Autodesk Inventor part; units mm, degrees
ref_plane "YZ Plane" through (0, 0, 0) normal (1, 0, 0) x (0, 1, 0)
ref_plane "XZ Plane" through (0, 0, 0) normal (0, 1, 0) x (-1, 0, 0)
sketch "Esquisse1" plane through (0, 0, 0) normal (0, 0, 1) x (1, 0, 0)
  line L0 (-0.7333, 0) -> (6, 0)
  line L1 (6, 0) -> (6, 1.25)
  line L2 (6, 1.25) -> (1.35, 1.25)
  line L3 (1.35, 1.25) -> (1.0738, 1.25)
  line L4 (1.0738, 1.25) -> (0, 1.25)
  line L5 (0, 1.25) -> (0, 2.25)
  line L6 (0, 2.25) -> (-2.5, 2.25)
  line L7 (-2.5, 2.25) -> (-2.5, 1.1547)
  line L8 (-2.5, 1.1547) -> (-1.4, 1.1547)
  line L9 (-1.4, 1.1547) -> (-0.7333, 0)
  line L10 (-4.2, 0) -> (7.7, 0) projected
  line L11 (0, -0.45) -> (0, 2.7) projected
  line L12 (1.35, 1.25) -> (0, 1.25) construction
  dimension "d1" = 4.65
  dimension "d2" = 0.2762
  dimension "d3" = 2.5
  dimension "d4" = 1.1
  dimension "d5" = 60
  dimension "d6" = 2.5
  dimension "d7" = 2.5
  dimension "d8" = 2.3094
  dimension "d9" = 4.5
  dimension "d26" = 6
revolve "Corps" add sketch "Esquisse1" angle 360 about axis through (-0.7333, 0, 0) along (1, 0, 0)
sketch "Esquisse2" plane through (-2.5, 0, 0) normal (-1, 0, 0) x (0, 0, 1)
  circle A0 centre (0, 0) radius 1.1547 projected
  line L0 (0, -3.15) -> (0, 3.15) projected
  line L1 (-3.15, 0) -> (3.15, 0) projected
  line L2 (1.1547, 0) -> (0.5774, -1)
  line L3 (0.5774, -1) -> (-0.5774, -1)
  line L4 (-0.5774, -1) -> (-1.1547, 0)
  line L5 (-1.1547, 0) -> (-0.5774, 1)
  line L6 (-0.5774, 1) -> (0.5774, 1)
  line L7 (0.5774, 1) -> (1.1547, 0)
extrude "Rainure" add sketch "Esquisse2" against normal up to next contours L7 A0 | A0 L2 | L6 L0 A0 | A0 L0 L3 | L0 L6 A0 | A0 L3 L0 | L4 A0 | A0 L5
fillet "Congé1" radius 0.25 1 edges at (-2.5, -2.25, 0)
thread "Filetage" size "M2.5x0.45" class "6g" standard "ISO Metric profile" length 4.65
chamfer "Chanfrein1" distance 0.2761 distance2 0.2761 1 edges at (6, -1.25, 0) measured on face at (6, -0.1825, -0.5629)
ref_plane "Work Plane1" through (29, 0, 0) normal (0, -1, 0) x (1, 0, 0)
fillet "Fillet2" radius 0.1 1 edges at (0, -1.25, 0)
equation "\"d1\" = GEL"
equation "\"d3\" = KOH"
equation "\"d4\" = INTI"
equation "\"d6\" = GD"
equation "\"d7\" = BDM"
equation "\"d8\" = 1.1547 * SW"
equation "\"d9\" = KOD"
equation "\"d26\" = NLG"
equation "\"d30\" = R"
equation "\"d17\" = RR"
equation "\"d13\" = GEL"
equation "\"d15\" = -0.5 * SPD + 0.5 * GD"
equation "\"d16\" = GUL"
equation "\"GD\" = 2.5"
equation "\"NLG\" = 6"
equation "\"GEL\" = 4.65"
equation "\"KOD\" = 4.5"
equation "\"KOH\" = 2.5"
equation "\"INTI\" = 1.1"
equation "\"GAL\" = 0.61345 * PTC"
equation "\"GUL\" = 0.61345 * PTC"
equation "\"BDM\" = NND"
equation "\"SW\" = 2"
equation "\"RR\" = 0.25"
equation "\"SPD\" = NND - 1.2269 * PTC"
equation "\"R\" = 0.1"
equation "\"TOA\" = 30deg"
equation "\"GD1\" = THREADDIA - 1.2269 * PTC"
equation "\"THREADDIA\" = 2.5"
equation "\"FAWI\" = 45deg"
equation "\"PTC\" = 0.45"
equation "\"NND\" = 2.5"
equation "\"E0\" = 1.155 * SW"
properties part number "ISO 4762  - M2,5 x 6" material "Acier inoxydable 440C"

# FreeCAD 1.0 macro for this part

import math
import FreeCAD as App
import Part
import Sketcher

V = App.Vector


def edges_at(feature, points):
    """Names of the edges that pass closest to the given points."""
    edges = feature.Shape.Edges
    near = lambda p: min(range(len(edges)), key=lambda i: edges[i].distToShape(Part.Vertex(*p))[0])
    return sorted({f"Edge{near(p) + 1}" for p in points})

doc = App.newDocument("Part")
params = doc.addObject("Spreadsheet::Sheet", "Params")
for row, (alias, value) in enumerate([
    ("sketch1_width", "6 mm"),
    ("sketch1_width2", "2.5 mm"),
    ("sketch1_width3", "1.1 mm"),
    ("sketch1_height", "1 mm"),
    ("sketch1_height2", "1.25 mm"),
    ("revolution_angle", "360 deg"),
    ("pad1_length", "1.1893 mm"),
    ("fillet_radius", "0.25 mm"),
    ("chamfer_size", "0.2761 mm"),
    ("chamfer_size2", "0.2761 mm"),
    ("fillet2_radius", "0.1 mm"),
], start=1):
    params.set(f"A{row}", alias)
    params.set(f"B{row}", "=" + value)
    params.setAlias(f"B{row}", alias)

body = doc.addObject("PartDesign::Body", "Body")

# Sketch on XY plane
sketch1 = body.newObject("Sketcher::SketchObject", "Sketch")
sketch1.AttachmentSupport = (doc.getObject("XY_Plane"), [""])
sketch1.MapMode = "FlatFace"
sketch1.addGeometry([
    Part.LineSegment(V(-1.4, 1.1547, 0), V(-0.7333, 0, 0)),  # 0
    Part.LineSegment(V(-0.7333, 0, 0), V(6, 0, 0)),  # 1
    Part.LineSegment(V(6, 0, 0), V(6, 1.25, 0)),  # 2
    Part.LineSegment(V(6, 1.25, 0), V(0, 1.25, 0)),  # 3
    Part.LineSegment(V(0, 1.25, 0), V(0, 2.25, 0)),  # 4
    Part.LineSegment(V(0, 2.25, 0), V(-2.5, 2.25, 0)),  # 5
    Part.LineSegment(V(-2.5, 2.25, 0), V(-2.5, 1.1547, 0)),  # 6
    Part.LineSegment(V(-2.5, 1.1547, 0), V(-1.4, 1.1547, 0)),  # 7
], False)
sketch1.addConstraint([
    Sketcher.Constraint("Coincident", 0, 2, 1, 1),
    Sketcher.Constraint("Coincident", 1, 2, 2, 1),
    Sketcher.Constraint("Coincident", 2, 2, 3, 1),
    Sketcher.Constraint("Coincident", 3, 2, 4, 1),
    Sketcher.Constraint("Coincident", 4, 2, 5, 1),
    Sketcher.Constraint("Coincident", 5, 2, 6, 1),
    Sketcher.Constraint("Coincident", 6, 2, 7, 1),
    Sketcher.Constraint("Coincident", 7, 2, 0, 1),
    Sketcher.Constraint("Horizontal", 1),
    Sketcher.Constraint("Vertical", 2),
    Sketcher.Constraint("Horizontal", 3),
    Sketcher.Constraint("Vertical", 4),
    Sketcher.Constraint("Horizontal", 5),
    Sketcher.Constraint("Vertical", 6),
    Sketcher.Constraint("Horizontal", 7),
    Sketcher.Constraint("PointOnObject", 0, 2, -1),
    Sketcher.Constraint("PointOnObject", 3, 2, -2),
    Sketcher.Constraint("DistanceX", 3, 2, 3, 1, 6.0),
    Sketcher.Constraint("DistanceX", 5, 2, 5, 1, 2.5),
    Sketcher.Constraint("DistanceX", 7, 1, 7, 2, 1.1),
    Sketcher.Constraint("DistanceY", 4, 1, 4, 2, 1.0),
    Sketcher.Constraint("DistanceY", 2, 1, 2, 2, 1.25),
    Sketcher.Constraint("DistanceX", 1, 1, 1, 2, 6.7333),
    Sketcher.Constraint("DistanceY", 6, 2, 6, 1, 1.0953),
])
sketch1.setExpression("Constraints[17]", "Params.sketch1_width")
sketch1.setExpression("Constraints[18]", "Params.sketch1_width2")
sketch1.setExpression("Constraints[19]", "Params.sketch1_width3")
sketch1.setExpression("Constraints[20]", "Params.sketch1_height")
sketch1.setExpression("Constraints[21]", "Params.sketch1_height2")
revolution = body.newObject("PartDesign::Revolution", "Revolution")
revolution.Profile = sketch1
revolution.ReferenceAxis = (sketch1, ["H_Axis"])
revolution.setExpression("Angle", "Params.revolution_angle")

# Sketch on YZ plane
sketch2 = body.newObject("Sketcher::SketchObject", "Sketch001")
sketch2.AttachmentSupport = (doc.getObject("YZ_Plane"), [""])
sketch2.MapMode = "FlatFace"
sketch2.AttachmentOffset = App.Placement(V(0, 0, -2.5), App.Rotation())
sketch2.addGeometry([
    Part.LineSegment(V(1, 0.5774, 0), V(0, 1.1547, 0)),  # 0
    Part.ArcOfCircle(Part.Circle(V(0, 0, 0), V(0, 0, 1), 1.1547), math.radians(30.002137), math.radians(90)),  # 1
    Part.ArcOfCircle(Part.Circle(V(0, 0, 0), V(0, 0, 1), 1.1547), math.radians(90), math.radians(149.997863)),  # 2
    Part.LineSegment(V(0, 1.1547, 0), V(-1, 0.5774, 0)),  # 3
    Part.ArcOfCircle(Part.Circle(V(0, 0, 0), V(0, 0, 1), 1.1547), math.radians(-30.002137), math.radians(30.002137)),  # 4
    Part.LineSegment(V(1, 0.5774, 0), V(1, -0.5774, 0)),  # 5
    Part.LineSegment(V(-1, 0.5774, 0), V(-1, -0.5774, 0)),  # 6
    Part.ArcOfCircle(Part.Circle(V(0, 0, 0), V(0, 0, 1), 1.1547), math.radians(149.997863), math.radians(210.002137)),  # 7
    Part.LineSegment(V(-1, -0.5774, 0), V(0, -1.1547, 0)),  # 8
    Part.ArcOfCircle(Part.Circle(V(0, 0, 0), V(0, 0, 1), 1.1547), math.radians(-149.997863), math.radians(-90)),  # 9
    Part.ArcOfCircle(Part.Circle(V(0, 0, 0), V(0, 0, 1), 1.1547), math.radians(-90), math.radians(-30.002137)),  # 10
    Part.LineSegment(V(0, -1.1547, 0), V(1, -0.5774, 0)),  # 11
], False)
sketch2.addConstraint([
    Sketcher.Constraint("Coincident", 0, 1, 1, 1),
    Sketcher.Constraint("Coincident", 1, 2, 0, 2),
    Sketcher.Constraint("Coincident", 2, 1, 3, 1),
    Sketcher.Constraint("Coincident", 3, 2, 2, 2),
    Sketcher.Constraint("Coincident", 4, 1, 5, 2),
    Sketcher.Constraint("Coincident", 5, 1, 4, 2),
    Sketcher.Constraint("Coincident", 6, 1, 7, 1),
    Sketcher.Constraint("Coincident", 7, 2, 6, 2),
    Sketcher.Constraint("Coincident", 8, 1, 9, 1),
    Sketcher.Constraint("Coincident", 9, 2, 8, 2),
    Sketcher.Constraint("Coincident", 10, 1, 11, 1),
    Sketcher.Constraint("Coincident", 11, 2, 10, 2),
    Sketcher.Constraint("Vertical", 5),
    Sketcher.Constraint("Vertical", 6),
    Sketcher.Constraint("Coincident", 1, 3, -1, 1),
    Sketcher.Constraint("Coincident", 2, 3, -1, 1),
    Sketcher.Constraint("Coincident", 4, 3, -1, 1),
    Sketcher.Constraint("Coincident", 7, 3, -1, 1),
    Sketcher.Constraint("Coincident", 9, 3, -1, 1),
    Sketcher.Constraint("Coincident", 10, 3, -1, 1),
    Sketcher.Constraint("Coincident", 2, 1, 1, 2),
    Sketcher.Constraint("Coincident", 5, 1, 0, 1),
    Sketcher.Constraint("Coincident", 6, 1, 3, 2),
    Sketcher.Constraint("Coincident", 8, 1, 7, 2),
    Sketcher.Constraint("Coincident", 10, 1, 9, 2),
    Sketcher.Constraint("PointOnObject", 1, 2, -2),
    Sketcher.Constraint("PointOnObject", 9, 2, -2),
    Sketcher.Constraint("Parallel", 0, 8),
    Sketcher.Constraint("Parallel", 3, 11),
    Sketcher.Constraint("DistanceX", -1, 1, 0, 1, 1.0),
    Sketcher.Constraint("Radius", 1, 1.1547),
])
pad1 = body.newObject("PartDesign::Pad", "Pad")
pad1.Profile = sketch2
pad1.setExpression("Length", "Params.pad1_length")
doc.recompute()

fillet = body.newObject("PartDesign::Fillet", "Fillet")
fillet.Base = (pad1, edges_at(pad1, [(-2.5, -2.25, 0)]))
fillet.setExpression("Radius", "Params.fillet_radius")
doc.recompute()

chamfer = body.newObject("PartDesign::Chamfer", "Chamfer")
chamfer.Base = (fillet, edges_at(fillet, [(6, -1.25, 0)]))
chamfer.ChamferType = "Two distances"
chamfer.setExpression("Size", "Params.chamfer_size")
chamfer.setExpression("Size2", "Params.chamfer_size2")
doc.recompute()

fillet2 = body.newObject("PartDesign::Fillet", "Fillet001")
fillet2.Base = (chamfer, edges_at(chamfer, [(0, -1.25, 0)]))
fillet2.setExpression("Radius", "Params.fillet2_radius")

doc.recompute()
